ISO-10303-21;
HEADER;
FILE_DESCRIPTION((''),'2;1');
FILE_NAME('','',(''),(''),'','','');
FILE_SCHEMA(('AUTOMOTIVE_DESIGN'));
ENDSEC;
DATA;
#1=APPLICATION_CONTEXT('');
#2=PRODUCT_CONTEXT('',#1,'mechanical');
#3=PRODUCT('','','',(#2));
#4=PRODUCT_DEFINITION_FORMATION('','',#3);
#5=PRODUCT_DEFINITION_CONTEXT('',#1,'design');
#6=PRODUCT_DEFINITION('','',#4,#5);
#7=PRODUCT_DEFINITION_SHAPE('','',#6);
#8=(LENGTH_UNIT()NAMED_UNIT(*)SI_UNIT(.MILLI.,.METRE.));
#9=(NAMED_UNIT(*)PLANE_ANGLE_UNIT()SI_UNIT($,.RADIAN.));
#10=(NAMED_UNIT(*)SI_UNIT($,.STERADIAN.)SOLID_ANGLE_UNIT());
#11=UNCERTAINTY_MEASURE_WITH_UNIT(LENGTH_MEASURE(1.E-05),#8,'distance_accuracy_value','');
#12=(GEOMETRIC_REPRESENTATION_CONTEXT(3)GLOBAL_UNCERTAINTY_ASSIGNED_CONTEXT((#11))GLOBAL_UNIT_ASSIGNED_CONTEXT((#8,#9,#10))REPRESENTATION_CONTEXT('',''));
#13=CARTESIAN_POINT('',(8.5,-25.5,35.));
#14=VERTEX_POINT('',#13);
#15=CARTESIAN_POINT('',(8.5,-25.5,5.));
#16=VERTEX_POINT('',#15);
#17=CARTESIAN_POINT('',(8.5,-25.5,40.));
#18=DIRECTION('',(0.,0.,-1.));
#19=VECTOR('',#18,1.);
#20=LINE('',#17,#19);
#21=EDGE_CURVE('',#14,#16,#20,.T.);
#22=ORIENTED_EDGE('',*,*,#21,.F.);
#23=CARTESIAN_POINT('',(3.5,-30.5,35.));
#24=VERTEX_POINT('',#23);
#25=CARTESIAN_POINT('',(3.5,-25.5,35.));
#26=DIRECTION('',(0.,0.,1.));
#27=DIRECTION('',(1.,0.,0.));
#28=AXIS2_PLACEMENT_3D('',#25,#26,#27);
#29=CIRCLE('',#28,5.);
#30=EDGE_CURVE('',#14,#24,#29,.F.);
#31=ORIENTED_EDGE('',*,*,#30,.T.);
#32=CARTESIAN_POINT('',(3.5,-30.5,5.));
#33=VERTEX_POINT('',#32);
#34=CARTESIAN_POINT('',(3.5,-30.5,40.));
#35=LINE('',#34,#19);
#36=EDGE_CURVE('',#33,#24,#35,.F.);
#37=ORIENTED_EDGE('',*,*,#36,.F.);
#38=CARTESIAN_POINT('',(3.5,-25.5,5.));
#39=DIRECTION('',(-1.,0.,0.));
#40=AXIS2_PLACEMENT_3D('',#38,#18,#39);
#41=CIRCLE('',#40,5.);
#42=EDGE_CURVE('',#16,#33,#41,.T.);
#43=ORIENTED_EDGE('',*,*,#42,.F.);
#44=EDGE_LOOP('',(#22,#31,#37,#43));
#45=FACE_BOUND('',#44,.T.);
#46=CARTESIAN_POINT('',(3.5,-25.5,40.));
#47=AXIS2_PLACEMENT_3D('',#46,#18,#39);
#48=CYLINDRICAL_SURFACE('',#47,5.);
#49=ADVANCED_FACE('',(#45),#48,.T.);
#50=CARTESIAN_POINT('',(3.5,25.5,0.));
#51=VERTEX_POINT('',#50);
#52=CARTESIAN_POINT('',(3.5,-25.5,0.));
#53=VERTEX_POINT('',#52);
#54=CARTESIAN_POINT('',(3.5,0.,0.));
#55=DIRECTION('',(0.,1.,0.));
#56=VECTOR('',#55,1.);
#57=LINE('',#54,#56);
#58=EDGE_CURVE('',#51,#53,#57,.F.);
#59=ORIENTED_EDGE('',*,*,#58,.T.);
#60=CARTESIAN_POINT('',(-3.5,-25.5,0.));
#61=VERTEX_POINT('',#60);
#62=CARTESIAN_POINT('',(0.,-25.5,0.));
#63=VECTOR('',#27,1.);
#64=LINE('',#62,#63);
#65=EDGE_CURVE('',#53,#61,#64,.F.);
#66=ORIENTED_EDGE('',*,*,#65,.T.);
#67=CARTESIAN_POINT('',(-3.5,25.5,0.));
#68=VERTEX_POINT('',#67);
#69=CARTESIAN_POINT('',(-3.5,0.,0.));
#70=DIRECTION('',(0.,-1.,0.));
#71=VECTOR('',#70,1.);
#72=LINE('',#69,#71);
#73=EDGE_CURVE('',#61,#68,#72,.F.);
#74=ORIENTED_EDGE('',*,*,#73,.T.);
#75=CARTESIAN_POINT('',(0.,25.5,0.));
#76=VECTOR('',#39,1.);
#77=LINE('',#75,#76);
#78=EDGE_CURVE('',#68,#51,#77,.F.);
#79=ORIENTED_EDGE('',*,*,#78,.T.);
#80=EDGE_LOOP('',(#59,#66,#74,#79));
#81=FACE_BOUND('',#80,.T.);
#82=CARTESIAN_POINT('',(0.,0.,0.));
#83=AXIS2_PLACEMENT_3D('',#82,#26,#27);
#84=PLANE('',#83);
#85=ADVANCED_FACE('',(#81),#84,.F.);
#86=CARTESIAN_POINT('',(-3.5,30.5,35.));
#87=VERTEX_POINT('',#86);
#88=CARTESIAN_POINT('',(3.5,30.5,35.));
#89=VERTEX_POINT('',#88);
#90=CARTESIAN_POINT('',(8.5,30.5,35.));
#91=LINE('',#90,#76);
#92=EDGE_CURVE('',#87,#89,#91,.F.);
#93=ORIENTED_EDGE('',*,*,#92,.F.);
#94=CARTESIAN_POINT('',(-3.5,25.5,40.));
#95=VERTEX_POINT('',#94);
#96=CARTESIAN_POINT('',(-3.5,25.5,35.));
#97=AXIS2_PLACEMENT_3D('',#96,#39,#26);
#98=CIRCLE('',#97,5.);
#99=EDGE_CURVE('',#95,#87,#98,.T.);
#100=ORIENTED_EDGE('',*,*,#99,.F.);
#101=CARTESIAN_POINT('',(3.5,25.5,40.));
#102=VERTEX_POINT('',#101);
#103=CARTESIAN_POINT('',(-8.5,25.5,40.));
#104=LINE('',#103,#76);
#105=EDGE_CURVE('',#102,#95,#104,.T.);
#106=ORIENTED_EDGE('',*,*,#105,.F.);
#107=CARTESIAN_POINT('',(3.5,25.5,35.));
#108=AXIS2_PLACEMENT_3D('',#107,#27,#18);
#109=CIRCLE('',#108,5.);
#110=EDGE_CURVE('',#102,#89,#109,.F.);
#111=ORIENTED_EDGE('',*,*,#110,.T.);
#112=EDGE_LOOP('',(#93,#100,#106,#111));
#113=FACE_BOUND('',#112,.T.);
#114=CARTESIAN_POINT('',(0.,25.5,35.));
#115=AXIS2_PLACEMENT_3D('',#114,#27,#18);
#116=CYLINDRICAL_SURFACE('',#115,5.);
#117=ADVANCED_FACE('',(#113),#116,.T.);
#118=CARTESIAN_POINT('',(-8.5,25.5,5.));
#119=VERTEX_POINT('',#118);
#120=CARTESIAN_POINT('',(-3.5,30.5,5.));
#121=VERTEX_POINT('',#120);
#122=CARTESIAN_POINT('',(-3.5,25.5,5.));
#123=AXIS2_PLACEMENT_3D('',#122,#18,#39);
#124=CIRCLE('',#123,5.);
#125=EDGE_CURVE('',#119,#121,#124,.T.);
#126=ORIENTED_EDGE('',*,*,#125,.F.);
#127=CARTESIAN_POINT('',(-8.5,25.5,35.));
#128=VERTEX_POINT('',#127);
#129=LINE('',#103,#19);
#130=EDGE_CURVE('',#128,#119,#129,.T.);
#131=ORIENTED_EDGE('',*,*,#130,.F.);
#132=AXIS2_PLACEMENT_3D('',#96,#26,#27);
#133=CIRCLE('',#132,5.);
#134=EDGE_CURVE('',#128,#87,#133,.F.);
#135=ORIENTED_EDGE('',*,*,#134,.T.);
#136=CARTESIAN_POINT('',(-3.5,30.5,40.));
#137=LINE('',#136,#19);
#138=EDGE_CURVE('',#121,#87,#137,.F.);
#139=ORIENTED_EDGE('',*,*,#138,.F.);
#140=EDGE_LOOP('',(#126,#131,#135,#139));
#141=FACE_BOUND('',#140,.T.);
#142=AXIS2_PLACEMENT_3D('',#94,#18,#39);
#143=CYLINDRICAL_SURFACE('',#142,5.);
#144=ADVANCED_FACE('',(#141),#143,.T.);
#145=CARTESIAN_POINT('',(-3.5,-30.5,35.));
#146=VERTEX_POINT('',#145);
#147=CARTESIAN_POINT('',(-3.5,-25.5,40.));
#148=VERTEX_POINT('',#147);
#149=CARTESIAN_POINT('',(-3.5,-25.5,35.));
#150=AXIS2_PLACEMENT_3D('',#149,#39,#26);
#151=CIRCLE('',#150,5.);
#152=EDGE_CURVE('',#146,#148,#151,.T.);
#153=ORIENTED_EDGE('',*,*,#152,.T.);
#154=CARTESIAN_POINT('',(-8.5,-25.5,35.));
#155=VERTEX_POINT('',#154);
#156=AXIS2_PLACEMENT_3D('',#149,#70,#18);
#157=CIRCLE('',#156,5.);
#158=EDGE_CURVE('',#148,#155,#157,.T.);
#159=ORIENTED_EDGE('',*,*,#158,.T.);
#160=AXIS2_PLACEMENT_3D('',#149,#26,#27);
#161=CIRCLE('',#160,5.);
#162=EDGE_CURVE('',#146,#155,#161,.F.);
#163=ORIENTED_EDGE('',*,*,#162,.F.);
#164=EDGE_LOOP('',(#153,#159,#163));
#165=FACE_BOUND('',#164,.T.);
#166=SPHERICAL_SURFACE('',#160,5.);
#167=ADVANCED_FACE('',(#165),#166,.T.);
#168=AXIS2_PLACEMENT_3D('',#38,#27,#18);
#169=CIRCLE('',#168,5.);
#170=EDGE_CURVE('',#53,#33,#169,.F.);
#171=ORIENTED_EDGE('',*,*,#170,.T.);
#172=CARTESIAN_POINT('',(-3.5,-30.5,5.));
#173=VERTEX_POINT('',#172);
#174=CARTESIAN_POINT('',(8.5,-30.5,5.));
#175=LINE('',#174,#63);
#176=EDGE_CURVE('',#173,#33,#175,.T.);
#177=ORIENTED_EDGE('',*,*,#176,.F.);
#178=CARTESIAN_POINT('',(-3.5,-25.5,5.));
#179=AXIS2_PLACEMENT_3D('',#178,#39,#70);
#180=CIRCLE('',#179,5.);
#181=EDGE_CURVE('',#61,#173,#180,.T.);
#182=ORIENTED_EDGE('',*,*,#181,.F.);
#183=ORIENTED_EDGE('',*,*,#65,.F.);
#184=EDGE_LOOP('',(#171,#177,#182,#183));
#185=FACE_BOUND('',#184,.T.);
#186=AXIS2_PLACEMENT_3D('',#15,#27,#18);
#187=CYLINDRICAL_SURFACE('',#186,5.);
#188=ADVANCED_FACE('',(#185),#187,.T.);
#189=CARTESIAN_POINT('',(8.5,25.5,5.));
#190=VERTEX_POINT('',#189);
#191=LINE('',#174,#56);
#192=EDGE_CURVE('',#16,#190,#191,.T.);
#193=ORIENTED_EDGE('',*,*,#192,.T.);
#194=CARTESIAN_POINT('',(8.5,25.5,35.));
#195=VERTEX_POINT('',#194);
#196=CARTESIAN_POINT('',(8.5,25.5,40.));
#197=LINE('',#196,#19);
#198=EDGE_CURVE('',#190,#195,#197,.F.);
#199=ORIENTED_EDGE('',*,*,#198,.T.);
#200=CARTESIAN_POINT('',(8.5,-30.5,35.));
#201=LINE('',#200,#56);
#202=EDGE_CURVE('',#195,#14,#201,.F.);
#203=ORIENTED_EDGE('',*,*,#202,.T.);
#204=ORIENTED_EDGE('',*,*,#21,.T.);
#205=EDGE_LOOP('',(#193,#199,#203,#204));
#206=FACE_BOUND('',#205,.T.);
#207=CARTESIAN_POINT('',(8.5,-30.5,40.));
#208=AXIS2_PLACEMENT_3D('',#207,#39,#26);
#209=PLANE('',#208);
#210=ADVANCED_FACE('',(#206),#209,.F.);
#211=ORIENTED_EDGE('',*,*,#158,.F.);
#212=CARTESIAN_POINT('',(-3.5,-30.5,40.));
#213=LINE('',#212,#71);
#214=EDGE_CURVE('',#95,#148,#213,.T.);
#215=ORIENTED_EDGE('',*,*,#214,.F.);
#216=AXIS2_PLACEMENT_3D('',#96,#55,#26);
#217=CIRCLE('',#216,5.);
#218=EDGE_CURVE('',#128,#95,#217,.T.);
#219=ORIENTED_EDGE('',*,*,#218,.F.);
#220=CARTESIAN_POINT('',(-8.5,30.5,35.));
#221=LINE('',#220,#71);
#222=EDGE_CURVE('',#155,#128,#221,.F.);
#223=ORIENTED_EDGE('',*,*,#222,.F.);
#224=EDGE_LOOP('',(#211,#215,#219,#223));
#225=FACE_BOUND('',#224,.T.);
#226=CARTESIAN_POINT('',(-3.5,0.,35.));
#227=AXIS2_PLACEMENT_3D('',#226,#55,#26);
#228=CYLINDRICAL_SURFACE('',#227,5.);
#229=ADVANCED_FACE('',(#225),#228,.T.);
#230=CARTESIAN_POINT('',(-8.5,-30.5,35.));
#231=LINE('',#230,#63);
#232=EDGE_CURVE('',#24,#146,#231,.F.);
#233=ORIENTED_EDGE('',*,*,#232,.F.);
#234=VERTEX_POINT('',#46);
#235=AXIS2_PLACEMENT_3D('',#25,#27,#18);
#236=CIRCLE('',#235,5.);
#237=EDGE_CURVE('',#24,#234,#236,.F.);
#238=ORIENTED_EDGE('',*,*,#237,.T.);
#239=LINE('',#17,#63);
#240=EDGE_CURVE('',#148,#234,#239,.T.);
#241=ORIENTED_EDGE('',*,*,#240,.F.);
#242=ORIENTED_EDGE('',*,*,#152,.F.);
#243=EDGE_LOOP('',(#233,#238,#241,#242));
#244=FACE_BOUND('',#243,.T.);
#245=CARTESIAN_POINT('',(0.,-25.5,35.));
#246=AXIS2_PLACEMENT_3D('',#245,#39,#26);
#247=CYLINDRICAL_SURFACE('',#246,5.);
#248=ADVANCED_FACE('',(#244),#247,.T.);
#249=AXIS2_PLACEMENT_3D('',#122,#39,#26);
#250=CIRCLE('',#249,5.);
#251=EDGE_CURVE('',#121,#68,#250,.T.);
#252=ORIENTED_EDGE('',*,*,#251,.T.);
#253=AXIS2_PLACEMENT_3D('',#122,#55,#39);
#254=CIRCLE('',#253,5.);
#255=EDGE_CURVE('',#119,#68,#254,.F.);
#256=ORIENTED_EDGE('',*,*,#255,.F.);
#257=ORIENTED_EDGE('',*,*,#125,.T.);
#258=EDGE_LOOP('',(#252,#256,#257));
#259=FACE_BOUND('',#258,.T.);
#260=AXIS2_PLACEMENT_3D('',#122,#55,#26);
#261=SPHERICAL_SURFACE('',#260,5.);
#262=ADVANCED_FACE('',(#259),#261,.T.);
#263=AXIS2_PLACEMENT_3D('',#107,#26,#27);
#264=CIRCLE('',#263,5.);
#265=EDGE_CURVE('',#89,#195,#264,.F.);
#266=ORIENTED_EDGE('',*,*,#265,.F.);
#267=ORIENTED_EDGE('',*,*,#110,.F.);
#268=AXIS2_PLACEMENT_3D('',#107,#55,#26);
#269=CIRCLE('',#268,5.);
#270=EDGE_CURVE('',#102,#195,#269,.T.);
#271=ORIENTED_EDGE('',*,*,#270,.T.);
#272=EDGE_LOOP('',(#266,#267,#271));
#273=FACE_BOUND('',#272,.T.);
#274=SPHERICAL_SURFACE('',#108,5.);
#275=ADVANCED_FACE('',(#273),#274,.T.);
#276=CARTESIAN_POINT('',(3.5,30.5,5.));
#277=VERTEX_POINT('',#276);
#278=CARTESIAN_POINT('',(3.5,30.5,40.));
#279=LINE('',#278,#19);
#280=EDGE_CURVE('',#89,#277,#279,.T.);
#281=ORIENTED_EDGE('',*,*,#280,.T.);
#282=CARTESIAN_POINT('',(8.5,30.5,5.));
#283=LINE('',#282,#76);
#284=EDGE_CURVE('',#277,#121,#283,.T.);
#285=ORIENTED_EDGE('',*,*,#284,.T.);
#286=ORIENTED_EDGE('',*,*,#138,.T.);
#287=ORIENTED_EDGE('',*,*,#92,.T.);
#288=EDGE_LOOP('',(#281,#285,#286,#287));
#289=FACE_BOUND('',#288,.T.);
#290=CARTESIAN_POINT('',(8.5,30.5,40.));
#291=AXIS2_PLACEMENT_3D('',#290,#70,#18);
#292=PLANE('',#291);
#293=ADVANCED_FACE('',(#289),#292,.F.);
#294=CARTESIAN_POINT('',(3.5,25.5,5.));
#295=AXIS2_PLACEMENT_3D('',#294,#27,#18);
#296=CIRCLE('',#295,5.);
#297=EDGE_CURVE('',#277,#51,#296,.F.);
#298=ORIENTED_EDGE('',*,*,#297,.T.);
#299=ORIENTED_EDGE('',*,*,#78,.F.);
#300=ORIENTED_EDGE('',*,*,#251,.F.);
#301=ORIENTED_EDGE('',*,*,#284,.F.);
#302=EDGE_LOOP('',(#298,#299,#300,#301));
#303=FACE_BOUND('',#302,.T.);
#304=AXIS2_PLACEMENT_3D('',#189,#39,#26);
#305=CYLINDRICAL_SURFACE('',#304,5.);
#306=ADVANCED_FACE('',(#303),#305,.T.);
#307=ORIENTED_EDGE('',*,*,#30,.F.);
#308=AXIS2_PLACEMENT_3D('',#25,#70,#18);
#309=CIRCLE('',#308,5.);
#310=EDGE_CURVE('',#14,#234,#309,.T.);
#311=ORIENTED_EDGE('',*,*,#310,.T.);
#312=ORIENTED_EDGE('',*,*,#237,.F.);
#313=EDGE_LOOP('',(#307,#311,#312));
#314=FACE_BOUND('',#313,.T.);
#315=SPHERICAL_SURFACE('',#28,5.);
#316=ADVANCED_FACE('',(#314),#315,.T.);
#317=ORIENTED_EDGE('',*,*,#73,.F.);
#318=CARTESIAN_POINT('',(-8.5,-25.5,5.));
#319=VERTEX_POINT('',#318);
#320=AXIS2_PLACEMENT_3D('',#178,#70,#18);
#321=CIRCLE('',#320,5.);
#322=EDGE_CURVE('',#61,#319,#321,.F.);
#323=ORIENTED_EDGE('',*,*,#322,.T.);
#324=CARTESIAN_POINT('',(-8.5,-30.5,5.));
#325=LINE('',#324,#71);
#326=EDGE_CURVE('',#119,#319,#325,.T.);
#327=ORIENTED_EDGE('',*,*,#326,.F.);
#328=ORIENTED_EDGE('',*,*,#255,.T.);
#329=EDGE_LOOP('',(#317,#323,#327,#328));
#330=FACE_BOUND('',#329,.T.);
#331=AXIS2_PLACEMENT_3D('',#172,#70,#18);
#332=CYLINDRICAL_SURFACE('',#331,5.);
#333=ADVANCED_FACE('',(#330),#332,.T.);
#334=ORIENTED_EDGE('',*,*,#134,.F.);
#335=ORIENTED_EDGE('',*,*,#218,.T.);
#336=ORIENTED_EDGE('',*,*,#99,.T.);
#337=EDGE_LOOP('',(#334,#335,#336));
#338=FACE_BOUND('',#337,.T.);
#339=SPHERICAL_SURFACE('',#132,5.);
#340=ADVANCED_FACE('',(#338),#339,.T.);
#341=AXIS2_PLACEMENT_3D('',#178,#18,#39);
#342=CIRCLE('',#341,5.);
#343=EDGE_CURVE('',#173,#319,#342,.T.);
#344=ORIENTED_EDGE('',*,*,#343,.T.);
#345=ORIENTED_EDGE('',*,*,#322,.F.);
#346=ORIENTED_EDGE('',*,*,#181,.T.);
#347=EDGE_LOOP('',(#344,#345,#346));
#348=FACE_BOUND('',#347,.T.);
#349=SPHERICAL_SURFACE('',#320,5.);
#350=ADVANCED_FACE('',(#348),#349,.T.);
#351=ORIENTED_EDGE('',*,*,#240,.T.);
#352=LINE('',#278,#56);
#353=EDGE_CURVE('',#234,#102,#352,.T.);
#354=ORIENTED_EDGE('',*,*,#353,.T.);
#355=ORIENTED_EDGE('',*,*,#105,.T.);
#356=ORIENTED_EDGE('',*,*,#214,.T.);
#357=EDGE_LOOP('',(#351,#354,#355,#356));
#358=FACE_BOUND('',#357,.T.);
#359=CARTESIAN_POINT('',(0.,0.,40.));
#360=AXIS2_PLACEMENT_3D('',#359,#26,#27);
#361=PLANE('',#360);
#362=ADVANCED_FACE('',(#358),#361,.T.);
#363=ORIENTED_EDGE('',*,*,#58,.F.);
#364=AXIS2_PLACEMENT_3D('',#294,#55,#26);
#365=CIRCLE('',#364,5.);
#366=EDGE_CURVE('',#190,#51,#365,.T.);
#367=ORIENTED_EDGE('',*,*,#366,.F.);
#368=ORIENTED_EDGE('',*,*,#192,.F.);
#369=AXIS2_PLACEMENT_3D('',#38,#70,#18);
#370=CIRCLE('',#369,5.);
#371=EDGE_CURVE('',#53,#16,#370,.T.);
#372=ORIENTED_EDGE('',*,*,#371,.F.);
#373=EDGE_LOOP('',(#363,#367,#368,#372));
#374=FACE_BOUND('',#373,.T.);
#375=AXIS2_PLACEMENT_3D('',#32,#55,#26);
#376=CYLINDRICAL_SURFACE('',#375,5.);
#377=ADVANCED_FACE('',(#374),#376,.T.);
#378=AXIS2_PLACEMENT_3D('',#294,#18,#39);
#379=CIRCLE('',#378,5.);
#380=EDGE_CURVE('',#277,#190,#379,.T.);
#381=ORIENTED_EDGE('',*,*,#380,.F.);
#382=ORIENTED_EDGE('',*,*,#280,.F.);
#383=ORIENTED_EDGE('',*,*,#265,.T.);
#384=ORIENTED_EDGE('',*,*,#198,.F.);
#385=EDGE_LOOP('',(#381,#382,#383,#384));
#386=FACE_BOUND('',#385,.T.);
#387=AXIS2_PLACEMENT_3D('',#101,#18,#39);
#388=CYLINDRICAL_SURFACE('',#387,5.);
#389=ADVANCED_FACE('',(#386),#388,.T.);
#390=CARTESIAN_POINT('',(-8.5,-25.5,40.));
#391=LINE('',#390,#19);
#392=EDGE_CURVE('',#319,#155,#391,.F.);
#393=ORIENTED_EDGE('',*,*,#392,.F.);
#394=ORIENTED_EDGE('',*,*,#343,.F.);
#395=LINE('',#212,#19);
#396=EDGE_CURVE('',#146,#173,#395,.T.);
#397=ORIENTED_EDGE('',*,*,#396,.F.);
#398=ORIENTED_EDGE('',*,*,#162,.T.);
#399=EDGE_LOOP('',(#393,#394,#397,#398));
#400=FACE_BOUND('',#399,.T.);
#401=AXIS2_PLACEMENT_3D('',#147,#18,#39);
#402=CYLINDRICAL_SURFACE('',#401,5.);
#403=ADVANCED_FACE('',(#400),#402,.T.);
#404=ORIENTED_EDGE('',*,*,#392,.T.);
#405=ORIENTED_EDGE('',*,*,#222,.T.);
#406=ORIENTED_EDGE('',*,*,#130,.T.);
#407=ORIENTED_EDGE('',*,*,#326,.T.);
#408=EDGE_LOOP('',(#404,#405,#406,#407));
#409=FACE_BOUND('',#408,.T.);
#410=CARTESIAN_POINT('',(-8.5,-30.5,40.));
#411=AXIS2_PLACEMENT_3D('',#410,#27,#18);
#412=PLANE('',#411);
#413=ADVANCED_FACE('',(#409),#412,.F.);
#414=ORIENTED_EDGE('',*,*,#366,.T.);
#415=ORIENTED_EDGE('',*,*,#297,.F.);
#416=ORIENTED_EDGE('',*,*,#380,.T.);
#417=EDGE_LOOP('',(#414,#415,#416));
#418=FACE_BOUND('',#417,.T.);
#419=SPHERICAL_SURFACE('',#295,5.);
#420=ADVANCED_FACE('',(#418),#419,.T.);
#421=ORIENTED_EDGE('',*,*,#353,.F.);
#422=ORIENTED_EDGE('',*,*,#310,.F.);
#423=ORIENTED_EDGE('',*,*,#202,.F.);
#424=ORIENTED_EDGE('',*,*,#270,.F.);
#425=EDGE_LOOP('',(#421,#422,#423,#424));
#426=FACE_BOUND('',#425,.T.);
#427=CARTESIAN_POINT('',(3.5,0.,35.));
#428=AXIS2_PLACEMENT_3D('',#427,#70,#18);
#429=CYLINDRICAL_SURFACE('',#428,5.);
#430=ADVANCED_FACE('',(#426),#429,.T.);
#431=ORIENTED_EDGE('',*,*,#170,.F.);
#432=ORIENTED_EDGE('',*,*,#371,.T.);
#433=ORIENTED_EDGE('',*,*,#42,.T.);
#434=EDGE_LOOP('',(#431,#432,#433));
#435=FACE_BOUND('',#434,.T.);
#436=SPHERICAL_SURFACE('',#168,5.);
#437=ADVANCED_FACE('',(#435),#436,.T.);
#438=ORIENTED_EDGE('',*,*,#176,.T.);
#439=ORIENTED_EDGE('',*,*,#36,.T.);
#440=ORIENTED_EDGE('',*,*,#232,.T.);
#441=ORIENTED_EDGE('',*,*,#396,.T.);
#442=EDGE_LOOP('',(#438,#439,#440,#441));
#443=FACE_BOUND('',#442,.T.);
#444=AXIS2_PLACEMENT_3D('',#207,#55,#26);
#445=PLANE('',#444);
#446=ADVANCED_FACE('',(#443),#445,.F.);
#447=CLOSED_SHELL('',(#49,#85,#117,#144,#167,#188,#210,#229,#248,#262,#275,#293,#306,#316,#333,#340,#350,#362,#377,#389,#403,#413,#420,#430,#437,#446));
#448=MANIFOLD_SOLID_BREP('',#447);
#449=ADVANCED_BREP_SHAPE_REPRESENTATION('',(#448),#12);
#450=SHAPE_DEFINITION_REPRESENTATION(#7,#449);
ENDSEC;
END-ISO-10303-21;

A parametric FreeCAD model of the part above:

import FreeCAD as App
import Part
import Sketcher

V = App.Vector

doc = App.newDocument("Part")
body = doc.addObject("PartDesign::Body", "Body")

# Sketch on XY plane
sketch1 = doc.addObject("Sketcher::SketchObject", "Sketch")
body.addObject(sketch1)
sketch1.AttachmentSupport = (doc.XY_Plane, [""])
sketch1.MapMode = "FlatFace"
sketch1.addGeometry([
    Part.LineSegment(V(-8, 30, 0), V(-8, -30, 0)),
    Part.LineSegment(V(-8, -30, 0), V(8, -30, 0)),
    Part.LineSegment(V(8, -30, 0), V(8, 30, 0)),
    Part.LineSegment(V(8, 30, 0), V(-8, 30, 0)),
], False)
sketch1.addConstraint([
    Sketcher.Constraint("Coincident", 0, 2, 1, 1),
    Sketcher.Constraint("Coincident", 1, 2, 2, 1),
    Sketcher.Constraint("Coincident", 2, 2, 3, 1),
    Sketcher.Constraint("Coincident", 3, 2, 0, 1),
    Sketcher.Constraint("Vertical", 0),
    Sketcher.Constraint("Horizontal", 1),
    Sketcher.Constraint("Vertical", 2),
    Sketcher.Constraint("Horizontal", 3),
    Sketcher.Constraint("Symmetric", 0, 2, 2, 2, -1, 1),
    Sketcher.Constraint("DistanceX", 1, 1, 1, 2, 17.0),
    Sketcher.Constraint("DistanceY", 0, 2, 0, 1, 61.0),
])
pad1 = doc.addObject("PartDesign::Pad", "Pad")
body.addObject(pad1)
pad1.Profile = sketch1
pad1.Length = 40
doc.recompute()

fillet = doc.addObject("PartDesign::Fillet", "Fillet")
body.addObject(fillet)
fillet.Base = (pad1, ["Edge1"])
fillet.UseAllEdges = True
fillet.Radius = 5

doc.recompute()
